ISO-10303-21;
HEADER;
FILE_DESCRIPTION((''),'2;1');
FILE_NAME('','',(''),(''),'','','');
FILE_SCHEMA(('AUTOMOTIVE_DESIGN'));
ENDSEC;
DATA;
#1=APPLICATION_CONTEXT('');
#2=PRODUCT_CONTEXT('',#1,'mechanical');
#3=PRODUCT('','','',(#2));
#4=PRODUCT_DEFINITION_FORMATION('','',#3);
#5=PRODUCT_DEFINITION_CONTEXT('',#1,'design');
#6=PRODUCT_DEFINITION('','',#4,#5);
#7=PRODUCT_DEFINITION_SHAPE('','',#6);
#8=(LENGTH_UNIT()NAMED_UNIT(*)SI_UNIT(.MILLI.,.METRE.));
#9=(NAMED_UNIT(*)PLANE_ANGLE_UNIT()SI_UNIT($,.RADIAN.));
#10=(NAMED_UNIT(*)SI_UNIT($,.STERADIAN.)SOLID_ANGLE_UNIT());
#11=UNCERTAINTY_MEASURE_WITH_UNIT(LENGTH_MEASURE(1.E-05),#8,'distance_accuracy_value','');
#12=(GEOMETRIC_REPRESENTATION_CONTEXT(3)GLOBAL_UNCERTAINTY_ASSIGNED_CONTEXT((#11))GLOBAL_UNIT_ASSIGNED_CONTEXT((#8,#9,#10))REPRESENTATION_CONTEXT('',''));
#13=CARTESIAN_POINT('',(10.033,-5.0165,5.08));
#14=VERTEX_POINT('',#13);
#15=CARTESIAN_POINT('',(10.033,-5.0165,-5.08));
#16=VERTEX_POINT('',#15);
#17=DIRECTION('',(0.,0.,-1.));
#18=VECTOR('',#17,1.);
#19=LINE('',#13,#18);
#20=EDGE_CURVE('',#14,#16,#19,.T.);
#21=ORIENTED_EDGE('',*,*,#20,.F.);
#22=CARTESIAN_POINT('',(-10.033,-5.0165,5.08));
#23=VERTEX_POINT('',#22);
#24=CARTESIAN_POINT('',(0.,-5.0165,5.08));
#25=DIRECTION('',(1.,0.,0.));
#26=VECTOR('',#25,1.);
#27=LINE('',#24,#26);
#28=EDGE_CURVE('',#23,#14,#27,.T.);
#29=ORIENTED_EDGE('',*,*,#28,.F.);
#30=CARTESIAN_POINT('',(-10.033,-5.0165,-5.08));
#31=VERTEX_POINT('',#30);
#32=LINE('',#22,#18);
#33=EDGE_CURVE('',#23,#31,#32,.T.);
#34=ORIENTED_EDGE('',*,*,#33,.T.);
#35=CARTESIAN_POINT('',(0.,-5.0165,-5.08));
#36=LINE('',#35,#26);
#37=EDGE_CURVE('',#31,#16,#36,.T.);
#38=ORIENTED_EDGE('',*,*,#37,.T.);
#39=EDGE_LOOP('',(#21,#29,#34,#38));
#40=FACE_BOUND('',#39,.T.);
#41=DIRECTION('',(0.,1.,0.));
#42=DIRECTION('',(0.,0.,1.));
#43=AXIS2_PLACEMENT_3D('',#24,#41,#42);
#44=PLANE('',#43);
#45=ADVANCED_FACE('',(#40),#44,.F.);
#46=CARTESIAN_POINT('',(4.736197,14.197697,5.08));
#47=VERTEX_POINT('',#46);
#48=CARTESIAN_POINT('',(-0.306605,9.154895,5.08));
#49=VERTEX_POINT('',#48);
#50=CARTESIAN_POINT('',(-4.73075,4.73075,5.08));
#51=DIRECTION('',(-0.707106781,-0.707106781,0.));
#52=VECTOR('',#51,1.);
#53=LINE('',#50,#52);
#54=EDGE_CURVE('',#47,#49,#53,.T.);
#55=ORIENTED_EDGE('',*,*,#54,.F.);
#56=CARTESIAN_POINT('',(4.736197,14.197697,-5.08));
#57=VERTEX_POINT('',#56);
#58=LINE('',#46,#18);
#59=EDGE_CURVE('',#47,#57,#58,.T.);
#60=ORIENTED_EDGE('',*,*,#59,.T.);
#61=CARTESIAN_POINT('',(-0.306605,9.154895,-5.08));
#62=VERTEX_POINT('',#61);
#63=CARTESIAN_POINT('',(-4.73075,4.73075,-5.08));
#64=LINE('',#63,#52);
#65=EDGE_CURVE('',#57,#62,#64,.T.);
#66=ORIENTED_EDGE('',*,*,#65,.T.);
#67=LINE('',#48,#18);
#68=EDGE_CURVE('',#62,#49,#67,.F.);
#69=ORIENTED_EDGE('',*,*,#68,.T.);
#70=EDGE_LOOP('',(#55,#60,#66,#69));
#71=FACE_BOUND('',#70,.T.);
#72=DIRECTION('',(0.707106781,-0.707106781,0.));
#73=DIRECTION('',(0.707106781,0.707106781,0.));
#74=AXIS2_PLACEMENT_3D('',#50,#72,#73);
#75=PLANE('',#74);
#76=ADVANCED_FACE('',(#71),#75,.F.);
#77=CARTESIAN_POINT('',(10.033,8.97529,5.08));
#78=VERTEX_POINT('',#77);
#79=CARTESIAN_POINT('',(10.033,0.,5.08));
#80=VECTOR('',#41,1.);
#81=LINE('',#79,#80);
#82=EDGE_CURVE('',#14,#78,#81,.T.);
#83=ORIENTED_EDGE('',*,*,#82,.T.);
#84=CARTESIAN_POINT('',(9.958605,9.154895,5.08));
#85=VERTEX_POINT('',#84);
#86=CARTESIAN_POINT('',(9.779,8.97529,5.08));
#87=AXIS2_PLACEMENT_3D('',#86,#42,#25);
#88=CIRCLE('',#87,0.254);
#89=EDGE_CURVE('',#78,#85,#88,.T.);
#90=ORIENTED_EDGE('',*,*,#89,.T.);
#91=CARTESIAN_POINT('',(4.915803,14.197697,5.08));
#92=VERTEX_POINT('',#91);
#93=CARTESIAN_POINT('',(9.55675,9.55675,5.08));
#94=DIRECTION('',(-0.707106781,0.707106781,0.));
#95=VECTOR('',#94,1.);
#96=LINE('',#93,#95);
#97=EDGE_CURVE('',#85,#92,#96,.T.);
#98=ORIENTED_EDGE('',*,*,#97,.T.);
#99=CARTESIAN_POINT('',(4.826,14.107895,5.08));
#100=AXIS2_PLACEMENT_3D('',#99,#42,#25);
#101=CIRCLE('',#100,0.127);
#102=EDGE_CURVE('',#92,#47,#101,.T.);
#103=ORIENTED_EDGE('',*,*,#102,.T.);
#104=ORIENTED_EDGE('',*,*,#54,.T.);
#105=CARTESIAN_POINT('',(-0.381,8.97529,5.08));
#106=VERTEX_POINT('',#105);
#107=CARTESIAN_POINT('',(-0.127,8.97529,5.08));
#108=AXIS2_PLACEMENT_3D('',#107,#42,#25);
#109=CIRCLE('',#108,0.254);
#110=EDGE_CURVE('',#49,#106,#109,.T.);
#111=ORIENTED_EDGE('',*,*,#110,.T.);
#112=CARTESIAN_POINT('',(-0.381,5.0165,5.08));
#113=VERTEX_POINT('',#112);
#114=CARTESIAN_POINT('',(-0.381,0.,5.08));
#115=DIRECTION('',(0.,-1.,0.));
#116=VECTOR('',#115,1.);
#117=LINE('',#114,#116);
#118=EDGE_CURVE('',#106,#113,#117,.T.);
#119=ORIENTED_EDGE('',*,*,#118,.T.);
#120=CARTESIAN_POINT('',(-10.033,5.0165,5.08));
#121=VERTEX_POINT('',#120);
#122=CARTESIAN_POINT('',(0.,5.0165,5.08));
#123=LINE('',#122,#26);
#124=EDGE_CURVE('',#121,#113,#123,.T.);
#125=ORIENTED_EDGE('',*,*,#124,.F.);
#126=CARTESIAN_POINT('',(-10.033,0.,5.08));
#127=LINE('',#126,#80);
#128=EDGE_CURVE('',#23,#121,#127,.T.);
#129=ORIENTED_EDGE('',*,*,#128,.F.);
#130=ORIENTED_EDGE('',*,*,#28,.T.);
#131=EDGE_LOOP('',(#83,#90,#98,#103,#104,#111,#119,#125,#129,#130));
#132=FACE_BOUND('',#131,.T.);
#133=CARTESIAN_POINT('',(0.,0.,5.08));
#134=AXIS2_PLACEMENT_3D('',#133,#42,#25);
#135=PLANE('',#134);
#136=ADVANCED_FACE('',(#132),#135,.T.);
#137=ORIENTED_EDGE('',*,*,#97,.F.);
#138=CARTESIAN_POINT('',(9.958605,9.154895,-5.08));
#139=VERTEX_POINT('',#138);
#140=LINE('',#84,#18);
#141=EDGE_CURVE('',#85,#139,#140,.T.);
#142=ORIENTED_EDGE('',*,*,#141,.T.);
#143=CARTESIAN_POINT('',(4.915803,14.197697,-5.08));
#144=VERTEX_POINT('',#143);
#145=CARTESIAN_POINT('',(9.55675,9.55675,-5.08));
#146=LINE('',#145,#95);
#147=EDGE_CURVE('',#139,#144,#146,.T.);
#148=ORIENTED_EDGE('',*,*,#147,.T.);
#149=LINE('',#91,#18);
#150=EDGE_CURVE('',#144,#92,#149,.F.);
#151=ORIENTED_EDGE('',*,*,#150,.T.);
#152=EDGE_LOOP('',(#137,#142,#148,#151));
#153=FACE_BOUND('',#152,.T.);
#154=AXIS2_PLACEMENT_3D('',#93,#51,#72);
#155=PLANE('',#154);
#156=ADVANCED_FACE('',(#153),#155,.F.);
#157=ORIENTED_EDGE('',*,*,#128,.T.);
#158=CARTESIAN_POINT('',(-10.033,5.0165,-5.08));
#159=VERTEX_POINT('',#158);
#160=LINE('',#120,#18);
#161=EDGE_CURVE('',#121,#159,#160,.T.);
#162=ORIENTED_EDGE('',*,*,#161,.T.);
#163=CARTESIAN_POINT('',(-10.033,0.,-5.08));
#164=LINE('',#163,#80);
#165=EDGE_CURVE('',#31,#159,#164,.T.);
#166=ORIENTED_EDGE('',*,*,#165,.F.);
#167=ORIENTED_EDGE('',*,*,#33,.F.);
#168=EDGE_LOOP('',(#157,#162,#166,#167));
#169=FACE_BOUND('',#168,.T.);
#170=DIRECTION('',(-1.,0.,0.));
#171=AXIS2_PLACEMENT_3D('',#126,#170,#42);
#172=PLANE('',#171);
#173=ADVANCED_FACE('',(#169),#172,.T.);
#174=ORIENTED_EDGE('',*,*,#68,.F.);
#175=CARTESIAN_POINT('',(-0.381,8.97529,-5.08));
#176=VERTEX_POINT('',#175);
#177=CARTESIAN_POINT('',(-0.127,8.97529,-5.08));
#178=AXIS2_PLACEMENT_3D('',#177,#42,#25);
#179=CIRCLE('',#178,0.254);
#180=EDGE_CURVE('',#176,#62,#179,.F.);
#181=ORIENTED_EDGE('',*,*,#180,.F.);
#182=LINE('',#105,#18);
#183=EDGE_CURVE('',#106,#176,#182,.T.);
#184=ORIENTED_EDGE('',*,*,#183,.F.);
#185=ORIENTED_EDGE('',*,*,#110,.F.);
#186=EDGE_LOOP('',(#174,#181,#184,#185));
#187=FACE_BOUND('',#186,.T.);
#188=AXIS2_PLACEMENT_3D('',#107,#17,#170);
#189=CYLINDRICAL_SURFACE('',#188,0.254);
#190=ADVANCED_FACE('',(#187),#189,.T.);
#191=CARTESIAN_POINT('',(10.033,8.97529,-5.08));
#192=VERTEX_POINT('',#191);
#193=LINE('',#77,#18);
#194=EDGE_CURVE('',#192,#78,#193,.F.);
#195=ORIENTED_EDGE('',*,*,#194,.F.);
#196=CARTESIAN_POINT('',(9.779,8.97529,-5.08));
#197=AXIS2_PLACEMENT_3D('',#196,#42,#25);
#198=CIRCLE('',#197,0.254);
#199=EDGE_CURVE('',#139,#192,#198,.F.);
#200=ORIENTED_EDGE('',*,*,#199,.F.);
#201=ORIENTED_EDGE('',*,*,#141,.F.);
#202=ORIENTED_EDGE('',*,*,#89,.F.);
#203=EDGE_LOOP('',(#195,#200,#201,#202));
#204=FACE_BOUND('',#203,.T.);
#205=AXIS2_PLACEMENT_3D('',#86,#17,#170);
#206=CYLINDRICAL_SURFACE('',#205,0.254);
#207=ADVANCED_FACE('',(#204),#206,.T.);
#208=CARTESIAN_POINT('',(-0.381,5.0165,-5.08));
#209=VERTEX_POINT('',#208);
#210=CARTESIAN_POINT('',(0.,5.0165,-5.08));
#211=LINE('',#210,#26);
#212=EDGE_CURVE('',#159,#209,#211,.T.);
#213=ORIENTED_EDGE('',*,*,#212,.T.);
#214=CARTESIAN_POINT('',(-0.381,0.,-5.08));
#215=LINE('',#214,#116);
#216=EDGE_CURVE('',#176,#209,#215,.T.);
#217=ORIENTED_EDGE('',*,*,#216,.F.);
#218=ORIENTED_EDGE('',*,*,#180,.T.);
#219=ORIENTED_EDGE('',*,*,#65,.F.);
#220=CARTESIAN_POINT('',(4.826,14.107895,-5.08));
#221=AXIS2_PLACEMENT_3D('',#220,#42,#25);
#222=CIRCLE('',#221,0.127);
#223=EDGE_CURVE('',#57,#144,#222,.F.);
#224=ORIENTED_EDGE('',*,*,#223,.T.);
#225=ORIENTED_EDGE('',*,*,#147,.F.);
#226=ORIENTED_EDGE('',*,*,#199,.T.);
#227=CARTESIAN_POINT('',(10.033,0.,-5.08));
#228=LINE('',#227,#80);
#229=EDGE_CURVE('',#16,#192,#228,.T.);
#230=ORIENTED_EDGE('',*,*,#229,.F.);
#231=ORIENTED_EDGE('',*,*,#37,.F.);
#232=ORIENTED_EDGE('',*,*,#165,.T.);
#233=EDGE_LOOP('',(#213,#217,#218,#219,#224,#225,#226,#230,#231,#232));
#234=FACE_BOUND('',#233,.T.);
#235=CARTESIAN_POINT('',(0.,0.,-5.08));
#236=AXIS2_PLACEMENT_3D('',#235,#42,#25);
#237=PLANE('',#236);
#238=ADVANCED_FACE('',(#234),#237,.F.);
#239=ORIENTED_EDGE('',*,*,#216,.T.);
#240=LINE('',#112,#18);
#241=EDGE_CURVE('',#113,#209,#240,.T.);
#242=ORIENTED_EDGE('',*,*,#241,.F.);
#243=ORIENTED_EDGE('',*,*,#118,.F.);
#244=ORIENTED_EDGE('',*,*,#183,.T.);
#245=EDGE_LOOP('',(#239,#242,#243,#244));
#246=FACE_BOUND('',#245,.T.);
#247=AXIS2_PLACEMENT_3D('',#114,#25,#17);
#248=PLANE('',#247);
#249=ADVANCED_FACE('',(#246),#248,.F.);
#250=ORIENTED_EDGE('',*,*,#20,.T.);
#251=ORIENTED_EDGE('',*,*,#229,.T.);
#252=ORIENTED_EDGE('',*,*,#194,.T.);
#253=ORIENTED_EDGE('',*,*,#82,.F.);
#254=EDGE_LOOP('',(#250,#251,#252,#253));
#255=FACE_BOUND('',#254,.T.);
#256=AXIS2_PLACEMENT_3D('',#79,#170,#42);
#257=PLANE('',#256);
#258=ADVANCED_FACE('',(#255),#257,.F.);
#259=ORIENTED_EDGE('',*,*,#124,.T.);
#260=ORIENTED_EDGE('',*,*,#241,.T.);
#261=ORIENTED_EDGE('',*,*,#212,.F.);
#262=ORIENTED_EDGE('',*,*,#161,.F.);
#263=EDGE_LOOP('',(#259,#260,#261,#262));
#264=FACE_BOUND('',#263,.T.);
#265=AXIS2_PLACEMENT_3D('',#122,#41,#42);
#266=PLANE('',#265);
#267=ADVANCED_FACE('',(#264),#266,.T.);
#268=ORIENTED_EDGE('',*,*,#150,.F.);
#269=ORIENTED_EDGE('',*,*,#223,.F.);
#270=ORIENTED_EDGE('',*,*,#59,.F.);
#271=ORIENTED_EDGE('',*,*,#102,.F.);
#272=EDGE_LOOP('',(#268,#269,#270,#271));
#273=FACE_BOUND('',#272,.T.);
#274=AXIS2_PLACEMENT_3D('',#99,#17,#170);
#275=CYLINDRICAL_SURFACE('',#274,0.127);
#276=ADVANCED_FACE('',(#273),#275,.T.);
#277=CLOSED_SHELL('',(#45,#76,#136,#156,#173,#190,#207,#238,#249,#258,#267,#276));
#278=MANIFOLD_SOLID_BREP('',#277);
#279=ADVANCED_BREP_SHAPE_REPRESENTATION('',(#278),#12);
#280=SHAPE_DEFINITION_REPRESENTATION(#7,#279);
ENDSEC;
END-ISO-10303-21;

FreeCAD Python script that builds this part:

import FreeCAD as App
import Part
import Sketcher

V = App.Vector
Q = App.Units.Quantity


def edges_at(feature, points):
    """Names of the edges that pass closest to the given points."""
    edges = feature.Shape.Edges
    near = lambda p: min(range(len(edges)), key=lambda i: edges[i].distToShape(Part.Vertex(*p))[0])
    return sorted({f"Edge{near(p) + 1}" for p in points})


def add_polygon(sketch, points):
    """Adds a closed chain of lines whose ends are joined by coincident constraints."""
    first, n = sketch.GeometryCount, len(points)
    for a, b in zip(points, points[1:] + points[:1]):
        sketch.addGeometry(Part.LineSegment(App.Vector(*a, 0), App.Vector(*b, 0)), False)
    for i in range(n):
        sketch.addConstraint(Sketcher.Constraint("Coincident", first + i, 2, first + (i + 1) % n, 1))

doc = App.newDocument("Part")
body = doc.addObject("PartDesign::Body", "Body")

# Sketch on XY plane
sketch1 = body.newObject("Sketcher::SketchObject", "Sketch")
sketch1.AttachmentSupport = (doc.getObject("XY_Plane"), [""])
sketch1.MapMode = "FlatFace"
add_polygon(sketch1, [(10, 9.1), (4.8, 14.3), (-0.4, 9.1), (-0.4, 5), (-10, 5), (-10, -5), (10, -5)])  # lines 0-6
sketch1.addConstraint([
    Sketcher.Constraint("Vertical", 2),
    Sketcher.Constraint("Horizontal", 3),
    Sketcher.Constraint("Vertical", 4),
    Sketcher.Constraint("Horizontal", 5),
    Sketcher.Constraint("Vertical", 6),
    Sketcher.Constraint("Symmetric", 3, 2, 5, 2, -1, 1),
    Sketcher.Constraint("Perpendicular", 0, 1),
    Sketcher.Constraint("Horizontal", 1, 2, 6, 2),
    Sketcher.Constraint("Equal", 0, 1),
    Sketcher.Constraint("DistanceX", 3, 2, 3, 1, Q("0.38 in")),
    Sketcher.Constraint("DistanceX", 5, 1, 5, 2, Q("0.79 in")),
    Sketcher.Constraint("DistanceY", 2, 2, 2, 1, Q("0.16 in")),
    Sketcher.Constraint("DistanceY", 4, 2, 4, 1, Q("0.395 in")),
])
pad1 = body.newObject("PartDesign::Pad", "Pad")
pad1.Profile = sketch1
pad1.Length = Q("0.4 in")
pad1.Midplane = True
doc.recompute()

fillet = body.newObject("PartDesign::Fillet", "Fillet")
fillet.Base = (pad1, edges_at(pad1, [(10.033, 9.081, 0), (-0.381, 9.081, 0)]))
fillet.Radius = Q("0.01 in")
doc.recompute()

fillet2 = body.newObject("PartDesign::Fillet", "Fillet001")
fillet2.Base = (fillet, edges_at(fillet, [(4.826, 14.287, 0)]))
fillet2.Radius = Q("0.005 in")

doc.recompute()
